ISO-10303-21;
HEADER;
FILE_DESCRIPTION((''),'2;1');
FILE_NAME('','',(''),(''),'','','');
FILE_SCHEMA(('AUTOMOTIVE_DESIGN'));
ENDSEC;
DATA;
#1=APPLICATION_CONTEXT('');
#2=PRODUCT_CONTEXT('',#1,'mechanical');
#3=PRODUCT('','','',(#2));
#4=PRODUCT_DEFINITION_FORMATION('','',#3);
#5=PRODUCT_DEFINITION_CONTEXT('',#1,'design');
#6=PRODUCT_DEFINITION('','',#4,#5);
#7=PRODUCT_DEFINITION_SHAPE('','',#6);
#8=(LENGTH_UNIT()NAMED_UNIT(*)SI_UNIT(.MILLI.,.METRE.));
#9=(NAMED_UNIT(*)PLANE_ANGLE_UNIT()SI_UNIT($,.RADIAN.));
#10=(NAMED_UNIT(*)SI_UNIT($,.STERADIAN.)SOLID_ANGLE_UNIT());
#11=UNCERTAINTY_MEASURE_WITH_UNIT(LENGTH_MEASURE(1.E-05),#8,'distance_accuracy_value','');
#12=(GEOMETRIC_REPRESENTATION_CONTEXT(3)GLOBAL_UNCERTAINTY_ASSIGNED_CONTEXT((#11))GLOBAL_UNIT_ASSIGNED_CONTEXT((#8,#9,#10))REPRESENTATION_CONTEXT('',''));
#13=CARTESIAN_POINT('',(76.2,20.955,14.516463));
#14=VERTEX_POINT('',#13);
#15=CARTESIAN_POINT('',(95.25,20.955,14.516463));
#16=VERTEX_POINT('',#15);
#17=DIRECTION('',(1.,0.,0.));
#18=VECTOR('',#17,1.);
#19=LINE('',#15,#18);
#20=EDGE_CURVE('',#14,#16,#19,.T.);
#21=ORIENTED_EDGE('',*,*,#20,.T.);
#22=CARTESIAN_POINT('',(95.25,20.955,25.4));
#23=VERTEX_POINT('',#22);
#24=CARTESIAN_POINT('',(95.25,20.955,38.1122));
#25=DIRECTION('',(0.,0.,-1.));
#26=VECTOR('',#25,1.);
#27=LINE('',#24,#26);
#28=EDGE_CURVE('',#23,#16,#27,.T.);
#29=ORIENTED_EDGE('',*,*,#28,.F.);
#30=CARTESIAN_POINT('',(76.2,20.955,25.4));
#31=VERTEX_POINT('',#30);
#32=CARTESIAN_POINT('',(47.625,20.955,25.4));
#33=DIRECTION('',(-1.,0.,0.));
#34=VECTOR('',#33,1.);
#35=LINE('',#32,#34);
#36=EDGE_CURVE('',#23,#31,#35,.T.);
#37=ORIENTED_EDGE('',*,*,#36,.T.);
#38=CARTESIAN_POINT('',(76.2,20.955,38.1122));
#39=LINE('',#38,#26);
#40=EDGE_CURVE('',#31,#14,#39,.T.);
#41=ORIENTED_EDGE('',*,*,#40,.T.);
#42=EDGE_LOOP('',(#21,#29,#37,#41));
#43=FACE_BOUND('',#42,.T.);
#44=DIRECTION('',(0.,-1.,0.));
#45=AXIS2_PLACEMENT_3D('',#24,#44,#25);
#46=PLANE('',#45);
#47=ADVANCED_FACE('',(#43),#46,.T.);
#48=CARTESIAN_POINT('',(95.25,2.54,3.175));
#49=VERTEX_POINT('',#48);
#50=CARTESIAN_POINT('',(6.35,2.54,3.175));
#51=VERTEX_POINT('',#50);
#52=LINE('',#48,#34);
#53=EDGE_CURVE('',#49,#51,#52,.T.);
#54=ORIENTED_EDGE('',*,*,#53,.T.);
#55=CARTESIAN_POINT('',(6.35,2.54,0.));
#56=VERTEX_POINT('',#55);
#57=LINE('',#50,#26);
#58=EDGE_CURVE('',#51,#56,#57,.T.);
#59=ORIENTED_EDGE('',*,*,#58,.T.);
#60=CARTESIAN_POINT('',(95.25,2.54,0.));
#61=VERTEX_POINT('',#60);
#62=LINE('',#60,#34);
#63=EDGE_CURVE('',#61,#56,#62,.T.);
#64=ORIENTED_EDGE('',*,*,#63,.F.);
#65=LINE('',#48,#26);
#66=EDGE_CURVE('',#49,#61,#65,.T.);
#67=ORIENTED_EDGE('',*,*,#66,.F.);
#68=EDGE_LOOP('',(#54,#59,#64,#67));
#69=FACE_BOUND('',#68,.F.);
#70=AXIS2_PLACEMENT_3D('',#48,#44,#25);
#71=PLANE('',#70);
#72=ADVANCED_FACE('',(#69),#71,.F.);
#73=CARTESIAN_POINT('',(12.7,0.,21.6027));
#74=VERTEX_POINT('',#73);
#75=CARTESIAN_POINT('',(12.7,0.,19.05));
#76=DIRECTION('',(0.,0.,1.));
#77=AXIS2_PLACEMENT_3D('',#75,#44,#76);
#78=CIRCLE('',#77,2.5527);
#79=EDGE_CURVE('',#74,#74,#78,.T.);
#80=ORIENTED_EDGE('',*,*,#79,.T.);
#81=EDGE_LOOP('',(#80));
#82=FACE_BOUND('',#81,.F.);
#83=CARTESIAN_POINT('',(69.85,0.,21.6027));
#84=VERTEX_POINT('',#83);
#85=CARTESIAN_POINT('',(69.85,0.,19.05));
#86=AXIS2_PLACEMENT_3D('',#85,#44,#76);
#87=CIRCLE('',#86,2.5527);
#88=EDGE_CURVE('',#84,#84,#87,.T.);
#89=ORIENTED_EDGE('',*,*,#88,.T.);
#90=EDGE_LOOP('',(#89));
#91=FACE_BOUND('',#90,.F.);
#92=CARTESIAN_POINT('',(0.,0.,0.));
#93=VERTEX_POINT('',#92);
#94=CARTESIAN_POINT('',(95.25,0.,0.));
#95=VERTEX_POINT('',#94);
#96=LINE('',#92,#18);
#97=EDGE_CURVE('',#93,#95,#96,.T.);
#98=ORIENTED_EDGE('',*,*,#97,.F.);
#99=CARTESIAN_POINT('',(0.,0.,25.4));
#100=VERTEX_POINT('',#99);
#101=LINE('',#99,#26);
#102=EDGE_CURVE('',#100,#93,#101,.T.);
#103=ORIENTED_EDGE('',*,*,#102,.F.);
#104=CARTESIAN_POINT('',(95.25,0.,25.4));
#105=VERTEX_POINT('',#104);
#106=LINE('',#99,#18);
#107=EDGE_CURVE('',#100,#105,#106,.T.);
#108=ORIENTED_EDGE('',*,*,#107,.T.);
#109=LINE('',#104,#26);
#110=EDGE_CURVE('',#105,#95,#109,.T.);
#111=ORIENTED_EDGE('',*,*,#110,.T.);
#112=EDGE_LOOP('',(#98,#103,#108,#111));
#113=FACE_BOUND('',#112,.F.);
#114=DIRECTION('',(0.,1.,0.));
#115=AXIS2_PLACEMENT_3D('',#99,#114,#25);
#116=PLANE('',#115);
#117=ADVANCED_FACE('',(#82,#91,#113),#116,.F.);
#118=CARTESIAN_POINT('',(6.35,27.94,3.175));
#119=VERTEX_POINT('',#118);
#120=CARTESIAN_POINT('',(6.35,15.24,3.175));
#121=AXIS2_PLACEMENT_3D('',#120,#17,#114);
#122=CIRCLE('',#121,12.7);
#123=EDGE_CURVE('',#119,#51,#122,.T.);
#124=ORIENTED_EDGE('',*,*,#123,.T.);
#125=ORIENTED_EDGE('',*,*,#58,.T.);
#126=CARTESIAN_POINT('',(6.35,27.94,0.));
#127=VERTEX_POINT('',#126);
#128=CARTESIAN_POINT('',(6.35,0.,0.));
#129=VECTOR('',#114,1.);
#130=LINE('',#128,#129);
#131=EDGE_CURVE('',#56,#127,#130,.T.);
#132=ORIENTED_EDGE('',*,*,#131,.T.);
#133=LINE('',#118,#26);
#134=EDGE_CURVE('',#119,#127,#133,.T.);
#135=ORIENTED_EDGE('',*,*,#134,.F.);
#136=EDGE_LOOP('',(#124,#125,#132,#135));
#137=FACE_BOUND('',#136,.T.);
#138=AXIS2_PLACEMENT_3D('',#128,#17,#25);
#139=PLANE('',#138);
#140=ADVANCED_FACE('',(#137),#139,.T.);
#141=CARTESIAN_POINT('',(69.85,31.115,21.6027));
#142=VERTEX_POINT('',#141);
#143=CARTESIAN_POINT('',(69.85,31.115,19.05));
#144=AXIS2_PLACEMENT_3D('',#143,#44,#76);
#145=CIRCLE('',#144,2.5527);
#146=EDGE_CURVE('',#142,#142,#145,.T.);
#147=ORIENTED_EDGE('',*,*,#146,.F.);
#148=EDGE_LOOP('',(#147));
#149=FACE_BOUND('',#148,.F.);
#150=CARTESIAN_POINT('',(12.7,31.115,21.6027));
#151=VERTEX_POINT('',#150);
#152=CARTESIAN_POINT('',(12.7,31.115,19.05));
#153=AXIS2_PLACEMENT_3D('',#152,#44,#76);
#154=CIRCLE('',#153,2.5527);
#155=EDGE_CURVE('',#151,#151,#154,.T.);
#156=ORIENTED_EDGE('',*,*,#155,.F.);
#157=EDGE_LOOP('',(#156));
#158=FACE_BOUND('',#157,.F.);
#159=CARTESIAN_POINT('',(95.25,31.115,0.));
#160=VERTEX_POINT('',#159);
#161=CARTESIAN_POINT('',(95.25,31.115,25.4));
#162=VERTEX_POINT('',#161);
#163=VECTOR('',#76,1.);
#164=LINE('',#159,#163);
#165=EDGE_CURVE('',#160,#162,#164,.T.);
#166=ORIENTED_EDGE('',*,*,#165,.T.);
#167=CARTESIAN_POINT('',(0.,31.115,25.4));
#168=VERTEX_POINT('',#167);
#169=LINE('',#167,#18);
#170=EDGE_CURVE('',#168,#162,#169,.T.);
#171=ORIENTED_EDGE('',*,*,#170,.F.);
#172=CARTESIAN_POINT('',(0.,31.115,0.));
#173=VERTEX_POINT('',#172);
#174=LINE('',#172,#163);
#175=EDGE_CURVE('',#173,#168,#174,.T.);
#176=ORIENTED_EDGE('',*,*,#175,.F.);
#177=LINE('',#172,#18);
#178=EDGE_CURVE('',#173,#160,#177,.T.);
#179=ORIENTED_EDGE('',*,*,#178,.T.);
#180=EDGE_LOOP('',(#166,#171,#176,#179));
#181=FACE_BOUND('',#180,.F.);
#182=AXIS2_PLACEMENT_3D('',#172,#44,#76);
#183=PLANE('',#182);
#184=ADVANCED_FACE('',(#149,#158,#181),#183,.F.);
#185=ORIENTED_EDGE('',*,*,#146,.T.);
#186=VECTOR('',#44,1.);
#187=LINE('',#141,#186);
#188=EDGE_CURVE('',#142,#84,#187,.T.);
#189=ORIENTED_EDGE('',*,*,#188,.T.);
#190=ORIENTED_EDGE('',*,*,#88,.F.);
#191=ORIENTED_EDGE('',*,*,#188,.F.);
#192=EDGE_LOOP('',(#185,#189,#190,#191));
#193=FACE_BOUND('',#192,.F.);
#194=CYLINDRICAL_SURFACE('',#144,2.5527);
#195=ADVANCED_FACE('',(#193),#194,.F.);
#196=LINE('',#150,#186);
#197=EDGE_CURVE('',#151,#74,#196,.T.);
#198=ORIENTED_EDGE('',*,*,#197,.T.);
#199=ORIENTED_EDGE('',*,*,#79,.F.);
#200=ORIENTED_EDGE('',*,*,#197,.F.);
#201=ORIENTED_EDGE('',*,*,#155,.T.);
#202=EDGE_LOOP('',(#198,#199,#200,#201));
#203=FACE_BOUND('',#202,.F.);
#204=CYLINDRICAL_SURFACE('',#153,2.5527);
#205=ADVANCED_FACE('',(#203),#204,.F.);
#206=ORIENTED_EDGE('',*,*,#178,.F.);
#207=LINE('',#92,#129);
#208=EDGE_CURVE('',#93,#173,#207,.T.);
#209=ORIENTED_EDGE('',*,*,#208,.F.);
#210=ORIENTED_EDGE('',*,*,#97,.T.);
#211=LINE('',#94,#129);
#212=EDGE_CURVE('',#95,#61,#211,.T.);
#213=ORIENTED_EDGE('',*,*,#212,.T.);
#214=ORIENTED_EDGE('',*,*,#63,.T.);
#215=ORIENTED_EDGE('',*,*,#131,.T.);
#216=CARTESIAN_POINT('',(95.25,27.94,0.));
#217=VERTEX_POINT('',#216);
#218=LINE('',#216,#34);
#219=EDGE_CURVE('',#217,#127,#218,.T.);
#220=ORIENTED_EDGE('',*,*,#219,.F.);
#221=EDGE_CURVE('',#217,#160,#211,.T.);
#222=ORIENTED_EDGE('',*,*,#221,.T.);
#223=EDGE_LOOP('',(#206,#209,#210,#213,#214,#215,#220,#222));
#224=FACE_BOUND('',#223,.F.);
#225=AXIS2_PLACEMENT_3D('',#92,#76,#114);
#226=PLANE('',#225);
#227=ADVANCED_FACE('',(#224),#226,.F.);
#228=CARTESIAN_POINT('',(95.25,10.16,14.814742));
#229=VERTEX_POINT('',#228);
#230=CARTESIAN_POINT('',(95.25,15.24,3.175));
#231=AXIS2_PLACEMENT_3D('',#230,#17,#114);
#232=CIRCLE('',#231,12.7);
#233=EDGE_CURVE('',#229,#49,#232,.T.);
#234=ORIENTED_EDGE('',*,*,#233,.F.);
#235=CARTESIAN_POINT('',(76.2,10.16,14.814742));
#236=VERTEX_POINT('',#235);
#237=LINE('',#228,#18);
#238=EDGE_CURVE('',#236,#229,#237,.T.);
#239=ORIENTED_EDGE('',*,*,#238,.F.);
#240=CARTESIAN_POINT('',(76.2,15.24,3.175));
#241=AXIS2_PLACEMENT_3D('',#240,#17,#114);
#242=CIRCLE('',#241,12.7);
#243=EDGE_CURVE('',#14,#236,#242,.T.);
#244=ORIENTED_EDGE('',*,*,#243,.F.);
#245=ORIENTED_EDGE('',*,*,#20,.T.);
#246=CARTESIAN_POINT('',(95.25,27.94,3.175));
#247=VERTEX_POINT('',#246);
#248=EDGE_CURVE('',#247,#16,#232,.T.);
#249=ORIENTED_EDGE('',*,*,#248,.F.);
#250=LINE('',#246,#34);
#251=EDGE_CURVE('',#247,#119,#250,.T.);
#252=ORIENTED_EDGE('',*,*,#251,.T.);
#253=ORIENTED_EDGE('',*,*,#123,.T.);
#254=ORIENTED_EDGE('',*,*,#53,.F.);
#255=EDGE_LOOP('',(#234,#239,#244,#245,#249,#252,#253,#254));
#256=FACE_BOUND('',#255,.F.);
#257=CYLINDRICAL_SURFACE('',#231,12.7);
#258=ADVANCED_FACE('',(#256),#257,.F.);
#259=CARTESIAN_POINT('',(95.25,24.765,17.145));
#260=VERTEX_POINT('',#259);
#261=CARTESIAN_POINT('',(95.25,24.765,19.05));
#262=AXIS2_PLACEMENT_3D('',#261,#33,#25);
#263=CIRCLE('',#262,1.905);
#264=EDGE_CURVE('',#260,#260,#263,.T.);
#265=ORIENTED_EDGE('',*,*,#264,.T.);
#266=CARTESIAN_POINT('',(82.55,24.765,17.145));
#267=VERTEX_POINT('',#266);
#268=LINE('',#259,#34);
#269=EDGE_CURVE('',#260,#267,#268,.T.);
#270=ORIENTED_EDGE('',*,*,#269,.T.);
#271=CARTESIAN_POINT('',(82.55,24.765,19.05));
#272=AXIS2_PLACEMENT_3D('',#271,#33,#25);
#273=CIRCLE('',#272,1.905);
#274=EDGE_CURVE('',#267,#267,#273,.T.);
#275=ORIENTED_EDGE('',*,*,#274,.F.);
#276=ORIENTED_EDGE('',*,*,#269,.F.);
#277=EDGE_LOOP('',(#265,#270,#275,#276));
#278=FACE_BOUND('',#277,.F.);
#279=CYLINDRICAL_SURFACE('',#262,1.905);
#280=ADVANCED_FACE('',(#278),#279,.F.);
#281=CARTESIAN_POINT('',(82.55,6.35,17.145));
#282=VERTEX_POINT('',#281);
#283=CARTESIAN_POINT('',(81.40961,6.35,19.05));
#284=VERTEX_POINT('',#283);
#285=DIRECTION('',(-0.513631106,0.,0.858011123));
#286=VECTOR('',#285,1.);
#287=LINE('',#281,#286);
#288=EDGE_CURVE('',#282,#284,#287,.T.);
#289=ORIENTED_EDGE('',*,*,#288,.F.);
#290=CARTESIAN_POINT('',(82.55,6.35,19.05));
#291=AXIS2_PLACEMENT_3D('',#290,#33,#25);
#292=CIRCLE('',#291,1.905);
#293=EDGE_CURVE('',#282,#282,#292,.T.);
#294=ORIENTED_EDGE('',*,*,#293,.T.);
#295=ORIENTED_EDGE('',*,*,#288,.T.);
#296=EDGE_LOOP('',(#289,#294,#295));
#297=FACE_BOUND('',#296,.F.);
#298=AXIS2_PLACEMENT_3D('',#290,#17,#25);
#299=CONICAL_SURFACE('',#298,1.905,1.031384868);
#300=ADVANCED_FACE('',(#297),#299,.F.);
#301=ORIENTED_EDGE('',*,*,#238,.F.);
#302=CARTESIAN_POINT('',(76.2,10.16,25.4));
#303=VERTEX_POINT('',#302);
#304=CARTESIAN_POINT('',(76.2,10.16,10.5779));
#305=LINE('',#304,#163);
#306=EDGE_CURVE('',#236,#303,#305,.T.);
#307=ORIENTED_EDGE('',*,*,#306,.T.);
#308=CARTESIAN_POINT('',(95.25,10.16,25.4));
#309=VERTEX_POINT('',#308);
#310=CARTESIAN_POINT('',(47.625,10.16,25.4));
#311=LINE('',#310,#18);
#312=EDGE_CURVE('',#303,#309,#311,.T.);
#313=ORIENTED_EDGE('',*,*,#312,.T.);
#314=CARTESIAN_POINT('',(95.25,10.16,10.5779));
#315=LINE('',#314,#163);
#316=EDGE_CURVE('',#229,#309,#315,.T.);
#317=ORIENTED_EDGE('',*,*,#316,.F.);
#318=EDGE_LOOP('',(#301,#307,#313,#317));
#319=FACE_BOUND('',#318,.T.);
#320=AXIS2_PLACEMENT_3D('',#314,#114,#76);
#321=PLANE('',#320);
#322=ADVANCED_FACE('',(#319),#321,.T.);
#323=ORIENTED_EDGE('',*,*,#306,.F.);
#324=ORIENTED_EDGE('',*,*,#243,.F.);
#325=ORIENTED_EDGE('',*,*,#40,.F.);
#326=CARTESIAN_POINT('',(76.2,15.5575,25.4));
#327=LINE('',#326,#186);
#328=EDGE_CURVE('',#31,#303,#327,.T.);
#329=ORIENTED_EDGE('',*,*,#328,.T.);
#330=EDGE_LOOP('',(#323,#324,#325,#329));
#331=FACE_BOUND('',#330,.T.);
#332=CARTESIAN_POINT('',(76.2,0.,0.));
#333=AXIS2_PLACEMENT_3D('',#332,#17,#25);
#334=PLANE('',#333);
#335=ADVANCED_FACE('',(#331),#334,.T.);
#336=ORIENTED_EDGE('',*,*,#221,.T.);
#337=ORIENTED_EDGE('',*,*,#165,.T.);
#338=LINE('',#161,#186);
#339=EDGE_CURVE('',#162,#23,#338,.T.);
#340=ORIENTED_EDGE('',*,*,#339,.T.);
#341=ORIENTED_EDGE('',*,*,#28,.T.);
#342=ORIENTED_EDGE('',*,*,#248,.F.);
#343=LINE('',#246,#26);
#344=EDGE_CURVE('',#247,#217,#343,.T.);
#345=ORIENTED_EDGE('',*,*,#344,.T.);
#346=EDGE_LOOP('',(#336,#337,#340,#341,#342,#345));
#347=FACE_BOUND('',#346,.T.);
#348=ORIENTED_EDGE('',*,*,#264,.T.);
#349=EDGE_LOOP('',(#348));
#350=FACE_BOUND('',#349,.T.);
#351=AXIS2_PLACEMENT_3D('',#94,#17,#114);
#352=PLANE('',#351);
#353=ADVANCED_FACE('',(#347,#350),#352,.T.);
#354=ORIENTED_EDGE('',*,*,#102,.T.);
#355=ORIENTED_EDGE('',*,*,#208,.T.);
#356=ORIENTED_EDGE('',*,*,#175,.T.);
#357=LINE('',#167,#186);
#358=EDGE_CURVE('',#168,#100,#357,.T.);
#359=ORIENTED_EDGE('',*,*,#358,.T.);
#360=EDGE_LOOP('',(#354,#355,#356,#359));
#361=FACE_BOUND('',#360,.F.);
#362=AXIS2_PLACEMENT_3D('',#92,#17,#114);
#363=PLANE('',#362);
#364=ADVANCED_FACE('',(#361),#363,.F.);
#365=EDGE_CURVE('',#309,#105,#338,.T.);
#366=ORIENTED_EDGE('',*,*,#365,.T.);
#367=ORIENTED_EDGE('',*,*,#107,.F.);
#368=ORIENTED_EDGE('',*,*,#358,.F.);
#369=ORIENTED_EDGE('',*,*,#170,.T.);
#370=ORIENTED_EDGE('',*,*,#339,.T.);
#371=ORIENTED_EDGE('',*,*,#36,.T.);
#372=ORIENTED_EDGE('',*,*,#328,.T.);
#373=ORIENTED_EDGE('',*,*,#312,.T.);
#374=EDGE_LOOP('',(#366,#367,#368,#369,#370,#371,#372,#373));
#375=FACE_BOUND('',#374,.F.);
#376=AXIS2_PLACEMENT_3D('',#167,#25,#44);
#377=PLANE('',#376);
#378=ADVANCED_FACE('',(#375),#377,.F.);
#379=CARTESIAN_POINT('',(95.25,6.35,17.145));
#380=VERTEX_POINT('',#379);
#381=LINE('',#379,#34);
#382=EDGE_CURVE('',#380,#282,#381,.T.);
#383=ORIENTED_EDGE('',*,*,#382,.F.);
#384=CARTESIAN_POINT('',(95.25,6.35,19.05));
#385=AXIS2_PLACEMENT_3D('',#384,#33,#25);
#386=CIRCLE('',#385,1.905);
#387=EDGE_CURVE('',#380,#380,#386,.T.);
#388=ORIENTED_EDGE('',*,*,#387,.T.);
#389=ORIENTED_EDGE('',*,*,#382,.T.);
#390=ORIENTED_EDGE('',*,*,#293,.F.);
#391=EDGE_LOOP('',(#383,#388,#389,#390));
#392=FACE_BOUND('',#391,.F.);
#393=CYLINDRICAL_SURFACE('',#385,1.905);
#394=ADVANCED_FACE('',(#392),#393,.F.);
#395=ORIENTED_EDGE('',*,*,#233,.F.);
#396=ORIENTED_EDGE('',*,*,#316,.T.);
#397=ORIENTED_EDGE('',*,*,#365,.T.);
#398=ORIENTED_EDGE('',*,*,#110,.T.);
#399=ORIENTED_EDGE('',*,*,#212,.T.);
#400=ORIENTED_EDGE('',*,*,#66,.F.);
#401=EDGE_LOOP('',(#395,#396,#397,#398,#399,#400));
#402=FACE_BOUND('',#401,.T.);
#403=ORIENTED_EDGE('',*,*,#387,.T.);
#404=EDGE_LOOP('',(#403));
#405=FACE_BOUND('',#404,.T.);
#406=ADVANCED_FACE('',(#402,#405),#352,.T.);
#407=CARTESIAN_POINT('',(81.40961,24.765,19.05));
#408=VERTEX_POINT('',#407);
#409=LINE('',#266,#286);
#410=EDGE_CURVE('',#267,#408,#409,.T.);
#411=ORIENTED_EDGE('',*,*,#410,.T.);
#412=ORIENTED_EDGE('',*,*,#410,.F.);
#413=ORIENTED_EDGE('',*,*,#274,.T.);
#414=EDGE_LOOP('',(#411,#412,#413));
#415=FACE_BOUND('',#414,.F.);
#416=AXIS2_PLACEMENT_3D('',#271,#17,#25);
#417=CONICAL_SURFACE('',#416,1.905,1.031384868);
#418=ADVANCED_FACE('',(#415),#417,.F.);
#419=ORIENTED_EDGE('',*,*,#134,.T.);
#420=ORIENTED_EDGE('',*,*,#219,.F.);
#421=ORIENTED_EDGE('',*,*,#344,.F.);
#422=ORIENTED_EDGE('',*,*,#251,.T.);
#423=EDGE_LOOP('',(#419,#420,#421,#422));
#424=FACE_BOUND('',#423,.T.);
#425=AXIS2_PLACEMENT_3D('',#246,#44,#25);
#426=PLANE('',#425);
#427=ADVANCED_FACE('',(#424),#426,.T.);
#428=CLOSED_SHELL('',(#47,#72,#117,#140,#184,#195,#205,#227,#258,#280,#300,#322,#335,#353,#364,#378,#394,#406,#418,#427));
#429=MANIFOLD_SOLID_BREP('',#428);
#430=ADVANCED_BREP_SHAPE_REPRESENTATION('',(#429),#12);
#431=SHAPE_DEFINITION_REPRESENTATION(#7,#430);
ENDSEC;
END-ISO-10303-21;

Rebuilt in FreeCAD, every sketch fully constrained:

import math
import FreeCAD as App
import Part
import Sketcher
from FreeCAD import Vector
Q = App.Units.Quantity

doc = App.newDocument("Part")
body = doc.addObject("PartDesign::Body", "Body")

# Sketch on YZ plane
sketch1 = body.newObject("Sketcher::SketchObject", "Sketch")
sketch1.AttachmentSupport = (doc.getObject("YZ_Plane"), [""])
sketch1.MapMode = "FlatFace"
sketch1.addGeometry([
    Part.LineSegment(Vector(0, 25, 0), Vector(0, 0, 0)),
    Part.LineSegment(Vector(0, 0, 0), Vector(31, 0, 0)),
    Part.LineSegment(Vector(31, 0, 0), Vector(31, 25, 0)),
    Part.LineSegment(Vector(31, 25, 0), Vector(0, 25, 0)),
], False)
sketch1.addConstraint([
    Sketcher.Constraint("Coincident", 0, 2, 1, 1),
    Sketcher.Constraint("Coincident", 1, 2, 2, 1),
    Sketcher.Constraint("Coincident", 2, 2, 3, 1),
    Sketcher.Constraint("Coincident", 3, 2, 0, 1),
    Sketcher.Constraint("Vertical", 0),
    Sketcher.Constraint("Horizontal", 1),
    Sketcher.Constraint("Vertical", 2),
    Sketcher.Constraint("Horizontal", 3),
    Sketcher.Constraint("Coincident", 0, 2, -1, 1),
    Sketcher.Constraint("DistanceY", 0, 2, 0, 1, Q("1 in")),
    Sketcher.Constraint("DistanceX", 1, 1, 1, 2, Q("1.225 in")),
])
pad1 = body.newObject("PartDesign::Pad", "Pad")
pad1.Profile = sketch1
pad1.Length = Q("3.75 in")

# Sketch on YZ plane
sketch2 = body.newObject("Sketcher::SketchObject", "Sketch001")
sketch2.AttachmentSupport = (doc.getObject("YZ_Plane"), [""])
sketch2.MapMode = "FlatFace"
sketch2.AttachmentOffset = App.Placement(Vector(0, 0, 3.75 * 25.4), App.Rotation())
sketch2.addGeometry([
    Part.LineSegment(Vector(27.9, 0, 0), Vector(27.9, 3.2, 0)),
    Part.ArcOfCircle(Part.Circle(Vector(15.2, 3.2, 0), Vector(0, 0, 1), 12.7), math.radians(0), math.radians(180)),
    Part.LineSegment(Vector(2.5, 3.2, 0), Vector(2.5, 0, 0)),
    Part.LineSegment(Vector(2.5, 0, 0), Vector(27.9, 0, 0)),
], False)
sketch2.addConstraint([
    Sketcher.Constraint("Tangent", 0, 2, 1, 1),
    Sketcher.Constraint("Tangent", 1, 2, 2, 1),
    Sketcher.Constraint("Coincident", 2, 2, 3, 1),
    Sketcher.Constraint("Coincident", 3, 2, 0, 1),
    Sketcher.Constraint("Vertical", 0),
    Sketcher.Constraint("Vertical", 2),
    Sketcher.Constraint("Horizontal", 3),
    Sketcher.Constraint("PointOnObject", 2, 2, -1),
    Sketcher.Constraint("Radius", 1, Q("0.5 in")),
    Sketcher.Constraint("DistanceX", -1, 1, 1, 3, Q("0.6 in")),
    Sketcher.Constraint("DistanceY", 0, 1, 0, 2, Q("0.125 in")),
])
pocket1 = body.newObject("PartDesign::Pocket", "Pocket")
pocket1.Profile = sketch2
pocket1.Length = Q("3.5 in")

# Sketch on XZ plane
sketch3 = body.newObject("Sketcher::SketchObject", "Sketch002")
sketch3.AttachmentSupport = (doc.getObject("XZ_Plane"), [""])
sketch3.MapMode = "FlatFace"
sketch3.AttachmentOffset = App.Placement(Vector(0, 0, -1.225 * 25.4), App.Rotation())
sketch3.addGeometry([
    Part.Circle(Vector(12.7, 19.1, 0), Vector(0, 0, 1), 2.6),
    Part.Circle(Vector(69.8, 19.1, 0), Vector(0, 0, 1), 2.6),
], False)
sketch3.addConstraint([
    Sketcher.Constraint("Equal", 0, 1),
    Sketcher.Constraint("Horizontal", 0, 3, 1, 3),
    Sketcher.Constraint("Diameter", 0, Q("0.201 in")),
    Sketcher.Constraint("DistanceX", -1, 1, 0, 3, Q("0.5 in")),
    Sketcher.Constraint("DistanceY", -1, 1, 0, 3, Q("0.75 in")),
    Sketcher.Constraint("DistanceX", -1, 1, 1, 3, Q("2.75 in")),
])
doc.recompute()
hole = body.newObject("PartDesign::Hole", "Hole")
hole.Profile = sketch3
hole.ThreadType = "None"
hole.Diameter = Q("0.201 in")
hole.DepthType = "ThroughAll"
hole.Reversed = True

# Sketch on YZ plane
sketch4 = body.newObject("Sketcher::SketchObject", "Sketch003")
sketch4.AttachmentSupport = (doc.getObject("YZ_Plane"), [""])
sketch4.MapMode = "FlatFace"
sketch4.AttachmentOffset = App.Placement(Vector(0, 0, 3.75 * 25.4), App.Rotation())
sketch4.addGeometry([
    Part.Circle(Vector(24.8, 19.1, 0), Vector(0, 0, 1), 1.9),
    Part.Circle(Vector(6.3, 19.1, 0), Vector(0, 0, 1), 1.9),
], False)
sketch4.addConstraint([
    Sketcher.Constraint("Equal", 0, 1),
    Sketcher.Constraint("Horizontal", 0, 3, 1, 3),
    Sketcher.Constraint("Diameter", 0, Q("0.15 in")),
    Sketcher.Constraint("DistanceY", -1, 1, 0, 3, Q("0.75 in")),
    Sketcher.Constraint("DistanceX", -1, 1, 1, 3, Q("0.25 in")),
    Sketcher.Constraint("DistanceX", -1, 1, 0, 3, Q("0.975 in")),
])
doc.recompute()
hole2 = body.newObject("PartDesign::Hole", "Hole001")
hole2.Profile = sketch4
hole2.ThreadType = "None"
hole2.Diameter = Q("0.15 in")
hole2.DepthType = "Dimension"
hole2.Depth = Q("0.5 in")
hole2.DrillPoint = "Angled"
hole2.DrillPointAngle = 118.188

# Sketch on YZ plane
sketch5 = body.newObject("Sketcher::SketchObject", "Sketch004")
sketch5.AttachmentSupport = (doc.getObject("YZ_Plane"), [""])
sketch5.MapMode = "FlatFace"
sketch5.AttachmentOffset = App.Placement(Vector(0, 0, 3.75 * 25.4), App.Rotation())
sketch5.addGeometry([
    Part.LineSegment(Vector(21, 11, 0), Vector(21, 38, 0)),
    Part.LineSegment(Vector(21, 38, 0), Vector(10, 38, 0)),
    Part.LineSegment(Vector(10, 38, 0), Vector(10, 11, 0)),
    Part.LineSegment(Vector(10, 11, 0), Vector(21, 11, 0)),
], False)
sketch5.addConstraint([
    Sketcher.Constraint("Coincident", 0, 2, 1, 1),
    Sketcher.Constraint("Coincident", 1, 2, 2, 1),
    Sketcher.Constraint("Coincident", 2, 2, 3, 1),
    Sketcher.Constraint("Coincident", 3, 2, 0, 1),
    Sketcher.Constraint("Vertical", 0),
    Sketcher.Constraint("Horizontal", 1),
    Sketcher.Constraint("Vertical", 2),
    Sketcher.Constraint("Horizontal", 3),
    Sketcher.Constraint("DistanceX", -1, 1, 1, 2, Q("0.4 in")),
    Sketcher.Constraint("DistanceX", 1, 2, 1, 1, Q("0.425 in")),
    Sketcher.Constraint("DistanceY", 0, 1, 0, 2, 27.5343),
    Sketcher.Constraint("DistanceY", -1, 1, 0, 2, 38.1122),
])
pocket2 = body.newObject("PartDesign::Pocket", "Pocket001")
pocket2.Profile = sketch5
pocket2.Length = Q("0.75 in")

doc.recompute()
